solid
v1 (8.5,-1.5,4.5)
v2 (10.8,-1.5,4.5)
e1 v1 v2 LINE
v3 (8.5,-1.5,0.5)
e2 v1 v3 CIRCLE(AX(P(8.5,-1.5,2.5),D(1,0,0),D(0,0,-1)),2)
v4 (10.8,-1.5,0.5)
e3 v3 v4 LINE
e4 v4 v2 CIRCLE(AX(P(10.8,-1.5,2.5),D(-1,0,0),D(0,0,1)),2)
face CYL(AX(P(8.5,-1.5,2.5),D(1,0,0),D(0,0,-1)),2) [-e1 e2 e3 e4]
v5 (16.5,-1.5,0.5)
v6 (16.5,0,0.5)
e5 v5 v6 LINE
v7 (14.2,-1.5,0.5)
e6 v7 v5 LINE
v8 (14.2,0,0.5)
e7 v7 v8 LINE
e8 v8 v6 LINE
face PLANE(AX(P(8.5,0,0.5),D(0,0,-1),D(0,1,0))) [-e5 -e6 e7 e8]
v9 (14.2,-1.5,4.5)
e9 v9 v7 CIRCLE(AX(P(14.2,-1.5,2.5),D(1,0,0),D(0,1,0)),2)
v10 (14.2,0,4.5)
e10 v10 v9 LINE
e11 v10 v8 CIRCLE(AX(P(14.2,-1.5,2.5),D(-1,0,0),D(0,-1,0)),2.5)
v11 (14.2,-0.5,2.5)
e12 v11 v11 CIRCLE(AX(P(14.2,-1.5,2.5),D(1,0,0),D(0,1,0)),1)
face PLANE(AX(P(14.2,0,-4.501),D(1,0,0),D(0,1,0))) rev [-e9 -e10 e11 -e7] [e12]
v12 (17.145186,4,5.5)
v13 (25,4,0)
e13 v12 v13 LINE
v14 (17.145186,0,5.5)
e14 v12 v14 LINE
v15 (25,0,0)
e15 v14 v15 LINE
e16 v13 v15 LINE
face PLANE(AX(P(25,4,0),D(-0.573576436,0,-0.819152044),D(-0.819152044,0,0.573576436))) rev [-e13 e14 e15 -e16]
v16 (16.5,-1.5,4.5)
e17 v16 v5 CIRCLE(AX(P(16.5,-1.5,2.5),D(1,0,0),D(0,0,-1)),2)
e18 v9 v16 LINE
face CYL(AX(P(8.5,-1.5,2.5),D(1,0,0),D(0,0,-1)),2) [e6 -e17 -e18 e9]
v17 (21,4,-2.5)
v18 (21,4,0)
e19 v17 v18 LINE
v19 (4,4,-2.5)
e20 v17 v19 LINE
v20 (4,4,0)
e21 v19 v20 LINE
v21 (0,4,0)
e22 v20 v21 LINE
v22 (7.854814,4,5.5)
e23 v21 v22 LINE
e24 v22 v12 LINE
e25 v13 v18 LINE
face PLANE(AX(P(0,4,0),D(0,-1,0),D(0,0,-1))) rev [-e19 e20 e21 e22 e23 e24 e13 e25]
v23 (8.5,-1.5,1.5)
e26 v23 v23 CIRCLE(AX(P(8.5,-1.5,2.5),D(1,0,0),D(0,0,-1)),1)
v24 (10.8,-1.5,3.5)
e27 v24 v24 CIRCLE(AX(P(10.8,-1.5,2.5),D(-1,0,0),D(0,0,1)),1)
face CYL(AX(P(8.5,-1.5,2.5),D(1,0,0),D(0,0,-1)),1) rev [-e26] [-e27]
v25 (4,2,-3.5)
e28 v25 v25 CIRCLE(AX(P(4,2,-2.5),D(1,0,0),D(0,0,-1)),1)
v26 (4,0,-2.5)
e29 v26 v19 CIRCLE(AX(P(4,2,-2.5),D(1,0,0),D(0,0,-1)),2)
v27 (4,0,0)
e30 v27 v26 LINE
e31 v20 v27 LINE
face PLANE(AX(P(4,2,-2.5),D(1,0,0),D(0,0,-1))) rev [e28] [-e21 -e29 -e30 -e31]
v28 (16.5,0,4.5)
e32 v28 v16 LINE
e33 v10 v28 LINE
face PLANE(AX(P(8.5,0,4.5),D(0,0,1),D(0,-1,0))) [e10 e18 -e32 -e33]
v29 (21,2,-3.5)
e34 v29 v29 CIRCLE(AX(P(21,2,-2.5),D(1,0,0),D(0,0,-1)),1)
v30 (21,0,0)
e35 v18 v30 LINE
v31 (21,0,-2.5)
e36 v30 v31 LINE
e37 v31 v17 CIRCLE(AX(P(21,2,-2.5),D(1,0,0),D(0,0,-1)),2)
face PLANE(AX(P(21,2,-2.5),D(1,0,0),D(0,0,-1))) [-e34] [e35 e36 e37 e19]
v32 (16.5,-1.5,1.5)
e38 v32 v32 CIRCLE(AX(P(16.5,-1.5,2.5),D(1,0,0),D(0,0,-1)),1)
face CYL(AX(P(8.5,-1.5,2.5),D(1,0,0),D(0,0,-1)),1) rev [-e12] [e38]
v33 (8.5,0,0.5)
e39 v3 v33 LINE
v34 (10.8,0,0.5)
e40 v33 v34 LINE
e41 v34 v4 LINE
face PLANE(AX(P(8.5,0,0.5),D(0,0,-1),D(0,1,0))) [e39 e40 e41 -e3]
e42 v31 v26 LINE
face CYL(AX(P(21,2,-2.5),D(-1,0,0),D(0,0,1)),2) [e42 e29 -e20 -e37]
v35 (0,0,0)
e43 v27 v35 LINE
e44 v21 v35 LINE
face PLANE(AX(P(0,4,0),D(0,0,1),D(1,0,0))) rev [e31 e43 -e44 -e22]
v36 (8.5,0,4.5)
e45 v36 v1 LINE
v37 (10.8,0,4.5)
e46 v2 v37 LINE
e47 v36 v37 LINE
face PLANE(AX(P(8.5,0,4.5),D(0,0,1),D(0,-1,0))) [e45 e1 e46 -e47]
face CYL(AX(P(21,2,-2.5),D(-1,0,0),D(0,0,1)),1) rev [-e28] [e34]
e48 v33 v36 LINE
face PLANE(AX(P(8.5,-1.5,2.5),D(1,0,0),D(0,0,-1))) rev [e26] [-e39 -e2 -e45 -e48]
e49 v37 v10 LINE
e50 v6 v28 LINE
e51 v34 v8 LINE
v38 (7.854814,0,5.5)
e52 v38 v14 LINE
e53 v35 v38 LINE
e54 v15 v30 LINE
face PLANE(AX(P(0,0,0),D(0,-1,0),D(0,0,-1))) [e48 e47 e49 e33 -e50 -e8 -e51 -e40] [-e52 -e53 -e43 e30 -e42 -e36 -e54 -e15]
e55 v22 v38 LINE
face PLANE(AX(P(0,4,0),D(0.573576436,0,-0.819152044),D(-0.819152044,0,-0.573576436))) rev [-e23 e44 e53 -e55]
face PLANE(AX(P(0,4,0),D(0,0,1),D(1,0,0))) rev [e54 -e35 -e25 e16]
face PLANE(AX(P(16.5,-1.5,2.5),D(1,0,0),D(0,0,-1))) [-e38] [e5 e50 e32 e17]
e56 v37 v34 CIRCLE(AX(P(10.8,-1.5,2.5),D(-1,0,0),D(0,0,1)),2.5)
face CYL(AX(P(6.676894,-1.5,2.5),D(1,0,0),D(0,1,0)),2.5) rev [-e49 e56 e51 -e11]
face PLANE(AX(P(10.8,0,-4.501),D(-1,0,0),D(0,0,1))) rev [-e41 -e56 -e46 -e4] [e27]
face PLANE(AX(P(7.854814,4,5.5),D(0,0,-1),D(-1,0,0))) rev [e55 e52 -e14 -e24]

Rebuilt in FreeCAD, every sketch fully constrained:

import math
import FreeCAD as App
import Part
import Sketcher
from FreeCAD import Vector
Q = App.Units.Quantity


def add_polygon(sketch, points):
    """Adds a closed chain of lines whose ends are joined by coincident constraints."""
    first, n = sketch.GeometryCount, len(points)
    for a, b in zip(points, points[1:] + points[:1]):
        sketch.addGeometry(Part.LineSegment(App.Vector(*a, 0), App.Vector(*b, 0)), False)
    for i in range(n):
        sketch.addConstraint(Sketcher.Constraint("Coincident", first + i, 2, first + (i + 1) % n, 1))

doc = App.newDocument("Part")
body = doc.addObject("PartDesign::Body", "Body")

sketch1 = body.newObject("Sketcher::SketchObject", "Sketch")
sketch1.AttachmentSupport = (doc.getObject("XZ_Plane"), [""])
sketch1.MapMode = "FlatFace"
add_polygon(sketch1, [(0, 0), (8, 6), (17, 6), (25, 0)])
sketch1.addConstraint([
    Sketcher.Constraint("Horizontal", 1),
    Sketcher.Constraint("Horizontal", 3),
    Sketcher.Constraint("Coincident", 3, 2, -1, 1),
    Sketcher.Constraint("Equal", 0, 2),
    Sketcher.Constraint("DistanceX", 3, 2, 3, 1, Q("25 mm")),
    Sketcher.Constraint("Angle", 0, Q("35 deg")),
    Sketcher.Constraint("DistanceY", -1, 1, 0, 2, Q("5.5 mm")),
])
pad1 = body.newObject("PartDesign::Pad", "Pad")
pad1.Profile = sketch1
pad1.Length = 4
pad1.Reversed = True

sketch2 = body.newObject("Sketcher::SketchObject", "Sketch001")
sketch2.AttachmentSupport = (doc.getObject("YZ_Plane"), [""])
sketch2.MapMode = "FlatFace"
sketch2.AttachmentOffset = App.Placement(Vector(0, 0, 4), App.Rotation())
sketch2.addGeometry([
    Part.LineSegment(Vector(0, 0, 0), Vector(0, -2.5, 0)),
    Part.ArcOfCircle(Part.Circle(Vector(2, -2.5, 0), Vector(0, 0, 1), 2), math.radians(180), math.radians(360)),
    Part.LineSegment(Vector(4, -2.5, 0), Vector(4, 0, 0)),
    Part.LineSegment(Vector(4, 0, 0), Vector(0, 0, 0)),
    Part.Circle(Vector(2, -2.5, 0), Vector(0, 0, 1), 1),
], False)
sketch2.addConstraint([
    Sketcher.Constraint("Tangent", 0, 2, 1, 1),
    Sketcher.Constraint("Tangent", 1, 2, 2, 1),
    Sketcher.Constraint("Coincident", 2, 2, 3, 1),
    Sketcher.Constraint("Coincident", 3, 2, 0, 1),
    Sketcher.Constraint("Vertical", 0),
    Sketcher.Constraint("Vertical", 2),
    Sketcher.Constraint("Horizontal", 3),
    Sketcher.Constraint("Coincident", 3, 2, -1, 1),
    Sketcher.Constraint("Coincident", 4, 3, 1, 3),
    Sketcher.Constraint("Diameter", 4, Q("2 mm")),
    Sketcher.Constraint("Radius", 1, Q("2 mm")),
    Sketcher.Constraint("DistanceY", 0, 2, 0, 1, Q("2.5 mm")),
])
pad2 = body.newObject("PartDesign::Pad", "Pad001")
pad2.Profile = sketch2
pad2.Length = 17

sketch3 = body.newObject("Sketcher::SketchObject", "Sketch002")
sketch3.AttachmentSupport = (doc.getObject("YZ_Plane"), [""])
sketch3.MapMode = "FlatFace"
sketch3.AttachmentOffset = App.Placement(Vector(0, 0, 12.5), App.Rotation())
sketch3.addGeometry([
    Part.LineSegment(Vector(0, 0.5, 0), Vector(0, 4.5, 0)),
    Part.LineSegment(Vector(0, 4.5, 0), Vector(-1.5, 4.5, 0)),
    Part.ArcOfCircle(Part.Circle(Vector(-1.5, 2.5, 0), Vector(0, 0, 1), 2), math.radians(90), math.radians(270)),
    Part.LineSegment(Vector(-1.5, 0.5, 0), Vector(0, 0.5, 0)),
    Part.Circle(Vector(-1.5, 2.5, 0), Vector(0, 0, 1), 1),
], False)
sketch3.addConstraint([
    Sketcher.Constraint("Coincident", 0, 2, 1, 1),
    Sketcher.Constraint("Tangent", 1, 2, 2, 1),
    Sketcher.Constraint("Tangent", 2, 2, 3, 1),
    Sketcher.Constraint("Coincident", 3, 2, 0, 1),
    Sketcher.Constraint("Vertical", 0),
    Sketcher.Constraint("Horizontal", 1),
    Sketcher.Constraint("Horizontal", 3),
    Sketcher.Constraint("Coincident", 4, 3, 2, 3),
    Sketcher.Constraint("PointOnObject", 0, 2, -2),
    Sketcher.Constraint("Diameter", 4, Q("2 mm")),
    Sketcher.Constraint("Radius", 2, Q("2 mm")),
    Sketcher.Constraint("DistanceX", 1, 2, 1, 1, Q("1.5 mm")),
    Sketcher.Constraint("DistanceY", -1, 1, 2, 3, Q("2.5 mm")),
])
pad3 = body.newObject("PartDesign::Pad", "Pad002")
pad3.Profile = sketch3
pad3.Type = "TwoLengths"
pad3.Length = 4
pad3.Length2 = 4

sketch4 = body.newObject("Sketcher::SketchObject", "Sketch003")
sketch4.AttachmentSupport = (doc.getObject("XY_Plane"), [""])
sketch4.MapMode = "FlatFace"
sketch4.AttachmentOffset = App.Placement(Vector(0, 0, 5.5), App.Rotation())
add_polygon(sketch4, [(10.8, 0), (10.8, -3.5), (14.2, -3.5), (14.2, 0)])
sketch4.addConstraint([
    Sketcher.Constraint("Vertical", 0),
    Sketcher.Constraint("Horizontal", 1),
    Sketcher.Constraint("Vertical", 2),
    Sketcher.Constraint("Horizontal", 3),
    Sketcher.Constraint("PointOnObject", 2, 2, -1),
    Sketcher.Constraint("DistanceX", 1, 1, 1, 2, Q("3.4 mm")),
    Sketcher.Constraint("DistanceY", 0, 2, 0, 1, Q("3.5 mm")),
    Sketcher.Constraint("DistanceX", -1, 1, 0, 2, Q("10.8 mm")),
])
pocket1 = body.newObject("PartDesign::Pocket", "Pocket")
pocket1.Profile = sketch4
pocket1.Length = 5

sketch5 = body.newObject("Sketcher::SketchObject", "Sketch004")
sketch5.AttachmentSupport = (doc.getObject("YZ_Plane"), [""])
sketch5.MapMode = "FlatFace"
sketch5.AttachmentOffset = App.Placement(Vector(0, 0, 14.2), App.Rotation())
sketch5.addGeometry([
    Part.LineSegment(Vector(0, 0.5, 0), Vector(0, 4.5, 0)),
    Part.ArcOfCircle(Part.Circle(Vector(-1.5, 2.5, 0), Vector(0, 0, 1), 2.5), math.radians(-53), math.radians(53)),
], False)
sketch5.addConstraint([
    Sketcher.Constraint("Coincident", 0, 1, 1, 1),
    Sketcher.Constraint("Coincident", 1, 2, 0, 2),
    Sketcher.Constraint("Vertical", 0),
    Sketcher.Constraint("PointOnObject", 0, 1, -2),
    Sketcher.Constraint("Radius", 1, Q("2.5 mm")),
    Sketcher.Constraint("DistanceY", 0, 1, 0, 2, Q("4 mm")),
    Sketcher.Constraint("DistanceY", -1, 1, 1, 3, Q("2.5 mm")),
])
pocket2 = body.newObject("PartDesign::Pocket", "Pocket001")
pocket2.Profile = sketch5
pocket2.Length = 3.4

doc.recompute()
